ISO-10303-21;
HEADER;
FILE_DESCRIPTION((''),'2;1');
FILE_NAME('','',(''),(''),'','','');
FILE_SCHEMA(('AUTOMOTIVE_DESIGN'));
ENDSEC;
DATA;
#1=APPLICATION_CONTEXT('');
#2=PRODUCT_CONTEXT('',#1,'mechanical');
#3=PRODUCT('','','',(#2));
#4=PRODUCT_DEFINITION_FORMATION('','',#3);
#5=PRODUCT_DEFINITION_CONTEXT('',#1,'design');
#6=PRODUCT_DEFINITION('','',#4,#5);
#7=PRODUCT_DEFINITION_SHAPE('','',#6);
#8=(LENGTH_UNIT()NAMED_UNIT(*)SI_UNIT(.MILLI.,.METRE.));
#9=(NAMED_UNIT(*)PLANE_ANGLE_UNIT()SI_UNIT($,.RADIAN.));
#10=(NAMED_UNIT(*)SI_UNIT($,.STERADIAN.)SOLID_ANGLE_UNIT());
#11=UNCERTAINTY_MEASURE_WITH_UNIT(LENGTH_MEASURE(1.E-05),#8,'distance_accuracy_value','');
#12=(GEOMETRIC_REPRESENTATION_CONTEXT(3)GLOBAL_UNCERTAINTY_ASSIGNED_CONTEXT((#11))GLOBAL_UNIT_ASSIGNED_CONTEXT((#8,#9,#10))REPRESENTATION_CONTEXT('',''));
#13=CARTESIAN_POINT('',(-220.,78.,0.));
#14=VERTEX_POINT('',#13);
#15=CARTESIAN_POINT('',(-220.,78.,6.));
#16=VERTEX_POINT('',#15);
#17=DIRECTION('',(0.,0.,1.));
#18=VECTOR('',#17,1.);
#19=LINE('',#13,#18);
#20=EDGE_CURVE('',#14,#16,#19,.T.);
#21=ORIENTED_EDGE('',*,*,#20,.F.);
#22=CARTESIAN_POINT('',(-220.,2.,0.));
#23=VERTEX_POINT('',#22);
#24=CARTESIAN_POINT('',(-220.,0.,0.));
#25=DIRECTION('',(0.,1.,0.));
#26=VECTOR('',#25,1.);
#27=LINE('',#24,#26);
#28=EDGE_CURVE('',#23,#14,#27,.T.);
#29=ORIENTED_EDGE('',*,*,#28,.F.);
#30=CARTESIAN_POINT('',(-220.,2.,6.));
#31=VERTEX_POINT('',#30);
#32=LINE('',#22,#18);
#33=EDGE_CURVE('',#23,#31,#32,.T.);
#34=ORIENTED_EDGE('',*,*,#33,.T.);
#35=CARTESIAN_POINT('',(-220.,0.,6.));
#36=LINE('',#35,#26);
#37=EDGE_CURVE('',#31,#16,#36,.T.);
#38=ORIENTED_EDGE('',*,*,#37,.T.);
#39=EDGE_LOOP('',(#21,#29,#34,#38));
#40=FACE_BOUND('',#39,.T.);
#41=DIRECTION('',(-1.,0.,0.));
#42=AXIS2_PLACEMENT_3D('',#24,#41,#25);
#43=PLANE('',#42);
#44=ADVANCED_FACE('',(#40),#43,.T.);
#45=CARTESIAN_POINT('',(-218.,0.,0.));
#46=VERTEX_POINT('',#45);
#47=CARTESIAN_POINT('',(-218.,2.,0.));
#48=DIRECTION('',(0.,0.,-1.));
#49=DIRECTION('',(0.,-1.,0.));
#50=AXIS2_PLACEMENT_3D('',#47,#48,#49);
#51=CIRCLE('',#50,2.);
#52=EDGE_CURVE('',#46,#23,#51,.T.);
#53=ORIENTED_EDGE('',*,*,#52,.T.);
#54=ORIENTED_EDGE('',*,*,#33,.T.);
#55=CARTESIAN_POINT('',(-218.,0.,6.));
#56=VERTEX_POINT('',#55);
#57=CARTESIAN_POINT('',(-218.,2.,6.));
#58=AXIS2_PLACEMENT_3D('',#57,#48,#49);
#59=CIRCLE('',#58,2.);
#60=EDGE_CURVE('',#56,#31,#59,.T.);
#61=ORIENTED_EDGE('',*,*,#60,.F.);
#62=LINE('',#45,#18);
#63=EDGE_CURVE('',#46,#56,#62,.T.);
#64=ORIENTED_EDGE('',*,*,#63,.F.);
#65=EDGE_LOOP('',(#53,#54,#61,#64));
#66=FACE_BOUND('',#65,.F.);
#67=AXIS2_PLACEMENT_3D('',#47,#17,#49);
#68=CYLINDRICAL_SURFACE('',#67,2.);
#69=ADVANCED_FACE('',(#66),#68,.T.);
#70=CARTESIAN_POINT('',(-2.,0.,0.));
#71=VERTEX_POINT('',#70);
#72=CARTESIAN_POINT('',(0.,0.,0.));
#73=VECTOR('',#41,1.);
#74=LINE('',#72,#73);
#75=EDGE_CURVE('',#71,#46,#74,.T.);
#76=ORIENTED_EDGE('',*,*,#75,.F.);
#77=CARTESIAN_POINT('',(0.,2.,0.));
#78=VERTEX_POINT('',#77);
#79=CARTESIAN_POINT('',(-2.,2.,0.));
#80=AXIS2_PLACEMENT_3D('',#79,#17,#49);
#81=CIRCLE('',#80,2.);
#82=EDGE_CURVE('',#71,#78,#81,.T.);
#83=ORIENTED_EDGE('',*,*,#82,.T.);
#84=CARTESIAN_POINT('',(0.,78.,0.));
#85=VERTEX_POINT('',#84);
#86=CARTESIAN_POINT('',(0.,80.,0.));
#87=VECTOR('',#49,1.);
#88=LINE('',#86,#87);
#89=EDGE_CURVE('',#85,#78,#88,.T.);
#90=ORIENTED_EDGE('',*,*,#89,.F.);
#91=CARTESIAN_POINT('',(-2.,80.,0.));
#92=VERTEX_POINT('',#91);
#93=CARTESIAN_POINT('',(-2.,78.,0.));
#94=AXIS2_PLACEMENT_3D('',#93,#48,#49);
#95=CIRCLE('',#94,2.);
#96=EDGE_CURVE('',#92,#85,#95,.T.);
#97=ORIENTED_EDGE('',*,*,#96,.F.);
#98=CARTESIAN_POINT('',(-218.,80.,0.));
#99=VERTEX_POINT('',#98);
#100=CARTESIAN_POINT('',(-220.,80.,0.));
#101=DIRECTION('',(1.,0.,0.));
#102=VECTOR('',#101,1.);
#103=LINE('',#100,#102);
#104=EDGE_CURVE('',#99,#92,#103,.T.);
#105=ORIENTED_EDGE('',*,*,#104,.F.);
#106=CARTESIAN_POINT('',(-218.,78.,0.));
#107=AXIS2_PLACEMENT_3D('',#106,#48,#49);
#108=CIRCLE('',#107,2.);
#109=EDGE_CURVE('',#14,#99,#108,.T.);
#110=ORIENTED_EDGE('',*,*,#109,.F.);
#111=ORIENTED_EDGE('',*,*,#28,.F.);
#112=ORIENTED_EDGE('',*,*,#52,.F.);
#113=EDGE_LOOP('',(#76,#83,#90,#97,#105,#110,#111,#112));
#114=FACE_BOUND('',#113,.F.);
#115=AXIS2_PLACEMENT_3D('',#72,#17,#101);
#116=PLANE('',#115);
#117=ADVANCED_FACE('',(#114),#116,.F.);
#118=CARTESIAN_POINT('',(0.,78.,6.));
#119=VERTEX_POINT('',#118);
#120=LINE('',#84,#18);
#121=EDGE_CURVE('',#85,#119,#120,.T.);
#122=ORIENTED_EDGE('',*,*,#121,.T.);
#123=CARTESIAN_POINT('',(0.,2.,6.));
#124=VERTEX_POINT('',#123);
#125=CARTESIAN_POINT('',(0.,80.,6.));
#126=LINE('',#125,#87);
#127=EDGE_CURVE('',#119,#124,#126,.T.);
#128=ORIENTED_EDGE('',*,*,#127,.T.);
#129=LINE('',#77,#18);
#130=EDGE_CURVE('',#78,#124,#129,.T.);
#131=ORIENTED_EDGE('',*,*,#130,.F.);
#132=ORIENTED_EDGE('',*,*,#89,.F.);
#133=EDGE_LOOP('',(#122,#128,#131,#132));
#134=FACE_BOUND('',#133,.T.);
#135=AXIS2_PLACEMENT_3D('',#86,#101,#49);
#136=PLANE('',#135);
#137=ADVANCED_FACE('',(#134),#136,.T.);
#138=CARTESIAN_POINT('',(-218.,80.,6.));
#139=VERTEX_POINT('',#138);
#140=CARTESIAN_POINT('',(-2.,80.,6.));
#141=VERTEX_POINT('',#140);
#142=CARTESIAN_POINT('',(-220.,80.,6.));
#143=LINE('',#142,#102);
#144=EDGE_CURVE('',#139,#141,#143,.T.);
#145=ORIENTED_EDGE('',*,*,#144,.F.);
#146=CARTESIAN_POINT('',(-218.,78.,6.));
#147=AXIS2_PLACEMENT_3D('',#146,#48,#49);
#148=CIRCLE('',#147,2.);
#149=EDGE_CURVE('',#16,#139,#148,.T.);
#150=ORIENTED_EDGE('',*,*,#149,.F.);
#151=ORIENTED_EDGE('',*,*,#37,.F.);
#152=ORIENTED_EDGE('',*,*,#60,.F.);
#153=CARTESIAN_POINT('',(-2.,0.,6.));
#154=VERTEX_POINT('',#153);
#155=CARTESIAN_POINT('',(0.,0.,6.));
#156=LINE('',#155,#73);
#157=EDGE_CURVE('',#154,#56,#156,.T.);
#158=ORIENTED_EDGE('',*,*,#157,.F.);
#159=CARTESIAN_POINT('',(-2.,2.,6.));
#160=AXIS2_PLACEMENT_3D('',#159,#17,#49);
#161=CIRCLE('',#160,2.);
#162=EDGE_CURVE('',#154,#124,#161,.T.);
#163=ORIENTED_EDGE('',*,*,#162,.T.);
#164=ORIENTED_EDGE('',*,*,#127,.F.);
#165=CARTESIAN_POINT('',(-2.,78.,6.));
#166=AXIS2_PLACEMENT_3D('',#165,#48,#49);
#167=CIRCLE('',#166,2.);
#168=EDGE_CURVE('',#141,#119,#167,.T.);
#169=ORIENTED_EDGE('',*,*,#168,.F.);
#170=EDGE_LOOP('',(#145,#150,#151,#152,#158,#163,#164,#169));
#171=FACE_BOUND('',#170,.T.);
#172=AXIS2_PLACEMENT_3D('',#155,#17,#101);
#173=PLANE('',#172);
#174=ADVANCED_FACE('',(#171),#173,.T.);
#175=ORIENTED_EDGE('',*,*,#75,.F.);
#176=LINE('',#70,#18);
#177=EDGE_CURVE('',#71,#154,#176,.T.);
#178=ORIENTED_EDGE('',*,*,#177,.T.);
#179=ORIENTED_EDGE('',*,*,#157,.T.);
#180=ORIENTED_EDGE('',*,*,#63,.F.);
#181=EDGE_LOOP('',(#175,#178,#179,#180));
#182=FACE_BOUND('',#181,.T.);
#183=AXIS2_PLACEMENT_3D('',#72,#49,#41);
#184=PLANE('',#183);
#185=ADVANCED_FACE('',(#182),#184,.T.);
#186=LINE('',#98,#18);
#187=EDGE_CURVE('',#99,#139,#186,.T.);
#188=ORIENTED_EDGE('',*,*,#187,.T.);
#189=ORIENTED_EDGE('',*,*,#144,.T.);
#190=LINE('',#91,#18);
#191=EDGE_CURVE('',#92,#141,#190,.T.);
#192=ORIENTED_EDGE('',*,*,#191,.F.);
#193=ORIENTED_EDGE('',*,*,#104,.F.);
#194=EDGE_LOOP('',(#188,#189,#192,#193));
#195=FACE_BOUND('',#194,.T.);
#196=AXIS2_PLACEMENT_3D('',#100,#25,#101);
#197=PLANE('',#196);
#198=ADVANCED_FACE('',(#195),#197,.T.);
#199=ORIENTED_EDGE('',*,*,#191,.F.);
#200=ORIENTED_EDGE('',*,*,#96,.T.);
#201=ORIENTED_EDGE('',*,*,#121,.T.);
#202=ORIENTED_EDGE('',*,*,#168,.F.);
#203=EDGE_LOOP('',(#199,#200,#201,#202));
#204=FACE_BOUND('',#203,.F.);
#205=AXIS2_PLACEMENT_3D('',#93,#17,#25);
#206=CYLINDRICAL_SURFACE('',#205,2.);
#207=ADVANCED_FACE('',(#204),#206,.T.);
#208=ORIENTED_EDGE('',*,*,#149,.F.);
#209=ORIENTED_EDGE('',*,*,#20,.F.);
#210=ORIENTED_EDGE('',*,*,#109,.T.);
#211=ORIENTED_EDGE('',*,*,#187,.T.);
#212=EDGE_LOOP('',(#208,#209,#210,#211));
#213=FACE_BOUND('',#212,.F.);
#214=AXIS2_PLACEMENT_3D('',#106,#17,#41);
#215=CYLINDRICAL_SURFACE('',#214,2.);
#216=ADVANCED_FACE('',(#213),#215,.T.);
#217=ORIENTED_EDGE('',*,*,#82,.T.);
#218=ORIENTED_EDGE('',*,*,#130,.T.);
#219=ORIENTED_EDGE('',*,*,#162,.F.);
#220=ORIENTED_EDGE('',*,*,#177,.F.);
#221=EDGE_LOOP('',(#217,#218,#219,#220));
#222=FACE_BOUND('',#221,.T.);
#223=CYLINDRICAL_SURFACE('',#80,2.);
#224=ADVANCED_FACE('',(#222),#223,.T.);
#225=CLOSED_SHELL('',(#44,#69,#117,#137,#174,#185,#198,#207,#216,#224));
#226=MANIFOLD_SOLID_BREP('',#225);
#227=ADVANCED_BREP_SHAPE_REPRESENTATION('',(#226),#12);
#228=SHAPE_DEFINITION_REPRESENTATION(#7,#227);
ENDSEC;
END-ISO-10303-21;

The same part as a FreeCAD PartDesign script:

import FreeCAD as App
import Part
import Sketcher
Q = App.Units.Quantity


def edges_at(feature, points):
    """Names of the edges that pass closest to the given points."""
    edges = feature.Shape.Edges
    near = lambda p: min(range(len(edges)), key=lambda i: edges[i].distToShape(Part.Vertex(*p))[0])
    return sorted({f"Edge{near(p) + 1}" for p in points})


def add_polygon(sketch, points):
    """Adds a closed chain of lines whose ends are joined by coincident constraints."""
    first, n = sketch.GeometryCount, len(points)
    for a, b in zip(points, points[1:] + points[:1]):
        sketch.addGeometry(Part.LineSegment(App.Vector(*a, 0), App.Vector(*b, 0)), False)
    for i in range(n):
        sketch.addConstraint(Sketcher.Constraint("Coincident", first + i, 2, first + (i + 1) % n, 1))

doc = App.newDocument("Part")
body = doc.addObject("PartDesign::Body", "Body")

sketch1 = body.newObject("Sketcher::SketchObject", "Sketch")
sketch1.AttachmentSupport = (doc.getObject("XY_Plane"), [""])
sketch1.MapMode = "FlatFace"
add_polygon(sketch1, [(-220, 0), (0, 0), (0, 80), (-220, 80)])
sketch1.addConstraint(Sketcher.Constraint("Horizontal", 0))
sketch1.addConstraint(Sketcher.Constraint("Vertical", 1))
sketch1.addConstraint(Sketcher.Constraint("Horizontal", 2))
sketch1.addConstraint(Sketcher.Constraint("Vertical", 3))
sketch1.addConstraint(Sketcher.Constraint("Coincident", 0, 2, -1, 1))
sketch1.addConstraint(Sketcher.Constraint("DistanceX", 0, 1, 0, 2, Q("220 mm")))
sketch1.addConstraint(Sketcher.Constraint("DistanceY", 1, 1, 1, 2, Q("80 mm")))
pad1 = body.newObject("PartDesign::Pad", "Pad")
pad1.Profile = sketch1
pad1.Length = 6
doc.recompute()

fillet = body.newObject("PartDesign::Fillet", "Fillet")
fillet.Base = (pad1, edges_at(pad1, [
    (0, 0, 3),
    (0, 80, 3),
    (-220, 80, 3),
    (-220, 0, 3),
]))
fillet.Radius = 2

doc.recompute()
